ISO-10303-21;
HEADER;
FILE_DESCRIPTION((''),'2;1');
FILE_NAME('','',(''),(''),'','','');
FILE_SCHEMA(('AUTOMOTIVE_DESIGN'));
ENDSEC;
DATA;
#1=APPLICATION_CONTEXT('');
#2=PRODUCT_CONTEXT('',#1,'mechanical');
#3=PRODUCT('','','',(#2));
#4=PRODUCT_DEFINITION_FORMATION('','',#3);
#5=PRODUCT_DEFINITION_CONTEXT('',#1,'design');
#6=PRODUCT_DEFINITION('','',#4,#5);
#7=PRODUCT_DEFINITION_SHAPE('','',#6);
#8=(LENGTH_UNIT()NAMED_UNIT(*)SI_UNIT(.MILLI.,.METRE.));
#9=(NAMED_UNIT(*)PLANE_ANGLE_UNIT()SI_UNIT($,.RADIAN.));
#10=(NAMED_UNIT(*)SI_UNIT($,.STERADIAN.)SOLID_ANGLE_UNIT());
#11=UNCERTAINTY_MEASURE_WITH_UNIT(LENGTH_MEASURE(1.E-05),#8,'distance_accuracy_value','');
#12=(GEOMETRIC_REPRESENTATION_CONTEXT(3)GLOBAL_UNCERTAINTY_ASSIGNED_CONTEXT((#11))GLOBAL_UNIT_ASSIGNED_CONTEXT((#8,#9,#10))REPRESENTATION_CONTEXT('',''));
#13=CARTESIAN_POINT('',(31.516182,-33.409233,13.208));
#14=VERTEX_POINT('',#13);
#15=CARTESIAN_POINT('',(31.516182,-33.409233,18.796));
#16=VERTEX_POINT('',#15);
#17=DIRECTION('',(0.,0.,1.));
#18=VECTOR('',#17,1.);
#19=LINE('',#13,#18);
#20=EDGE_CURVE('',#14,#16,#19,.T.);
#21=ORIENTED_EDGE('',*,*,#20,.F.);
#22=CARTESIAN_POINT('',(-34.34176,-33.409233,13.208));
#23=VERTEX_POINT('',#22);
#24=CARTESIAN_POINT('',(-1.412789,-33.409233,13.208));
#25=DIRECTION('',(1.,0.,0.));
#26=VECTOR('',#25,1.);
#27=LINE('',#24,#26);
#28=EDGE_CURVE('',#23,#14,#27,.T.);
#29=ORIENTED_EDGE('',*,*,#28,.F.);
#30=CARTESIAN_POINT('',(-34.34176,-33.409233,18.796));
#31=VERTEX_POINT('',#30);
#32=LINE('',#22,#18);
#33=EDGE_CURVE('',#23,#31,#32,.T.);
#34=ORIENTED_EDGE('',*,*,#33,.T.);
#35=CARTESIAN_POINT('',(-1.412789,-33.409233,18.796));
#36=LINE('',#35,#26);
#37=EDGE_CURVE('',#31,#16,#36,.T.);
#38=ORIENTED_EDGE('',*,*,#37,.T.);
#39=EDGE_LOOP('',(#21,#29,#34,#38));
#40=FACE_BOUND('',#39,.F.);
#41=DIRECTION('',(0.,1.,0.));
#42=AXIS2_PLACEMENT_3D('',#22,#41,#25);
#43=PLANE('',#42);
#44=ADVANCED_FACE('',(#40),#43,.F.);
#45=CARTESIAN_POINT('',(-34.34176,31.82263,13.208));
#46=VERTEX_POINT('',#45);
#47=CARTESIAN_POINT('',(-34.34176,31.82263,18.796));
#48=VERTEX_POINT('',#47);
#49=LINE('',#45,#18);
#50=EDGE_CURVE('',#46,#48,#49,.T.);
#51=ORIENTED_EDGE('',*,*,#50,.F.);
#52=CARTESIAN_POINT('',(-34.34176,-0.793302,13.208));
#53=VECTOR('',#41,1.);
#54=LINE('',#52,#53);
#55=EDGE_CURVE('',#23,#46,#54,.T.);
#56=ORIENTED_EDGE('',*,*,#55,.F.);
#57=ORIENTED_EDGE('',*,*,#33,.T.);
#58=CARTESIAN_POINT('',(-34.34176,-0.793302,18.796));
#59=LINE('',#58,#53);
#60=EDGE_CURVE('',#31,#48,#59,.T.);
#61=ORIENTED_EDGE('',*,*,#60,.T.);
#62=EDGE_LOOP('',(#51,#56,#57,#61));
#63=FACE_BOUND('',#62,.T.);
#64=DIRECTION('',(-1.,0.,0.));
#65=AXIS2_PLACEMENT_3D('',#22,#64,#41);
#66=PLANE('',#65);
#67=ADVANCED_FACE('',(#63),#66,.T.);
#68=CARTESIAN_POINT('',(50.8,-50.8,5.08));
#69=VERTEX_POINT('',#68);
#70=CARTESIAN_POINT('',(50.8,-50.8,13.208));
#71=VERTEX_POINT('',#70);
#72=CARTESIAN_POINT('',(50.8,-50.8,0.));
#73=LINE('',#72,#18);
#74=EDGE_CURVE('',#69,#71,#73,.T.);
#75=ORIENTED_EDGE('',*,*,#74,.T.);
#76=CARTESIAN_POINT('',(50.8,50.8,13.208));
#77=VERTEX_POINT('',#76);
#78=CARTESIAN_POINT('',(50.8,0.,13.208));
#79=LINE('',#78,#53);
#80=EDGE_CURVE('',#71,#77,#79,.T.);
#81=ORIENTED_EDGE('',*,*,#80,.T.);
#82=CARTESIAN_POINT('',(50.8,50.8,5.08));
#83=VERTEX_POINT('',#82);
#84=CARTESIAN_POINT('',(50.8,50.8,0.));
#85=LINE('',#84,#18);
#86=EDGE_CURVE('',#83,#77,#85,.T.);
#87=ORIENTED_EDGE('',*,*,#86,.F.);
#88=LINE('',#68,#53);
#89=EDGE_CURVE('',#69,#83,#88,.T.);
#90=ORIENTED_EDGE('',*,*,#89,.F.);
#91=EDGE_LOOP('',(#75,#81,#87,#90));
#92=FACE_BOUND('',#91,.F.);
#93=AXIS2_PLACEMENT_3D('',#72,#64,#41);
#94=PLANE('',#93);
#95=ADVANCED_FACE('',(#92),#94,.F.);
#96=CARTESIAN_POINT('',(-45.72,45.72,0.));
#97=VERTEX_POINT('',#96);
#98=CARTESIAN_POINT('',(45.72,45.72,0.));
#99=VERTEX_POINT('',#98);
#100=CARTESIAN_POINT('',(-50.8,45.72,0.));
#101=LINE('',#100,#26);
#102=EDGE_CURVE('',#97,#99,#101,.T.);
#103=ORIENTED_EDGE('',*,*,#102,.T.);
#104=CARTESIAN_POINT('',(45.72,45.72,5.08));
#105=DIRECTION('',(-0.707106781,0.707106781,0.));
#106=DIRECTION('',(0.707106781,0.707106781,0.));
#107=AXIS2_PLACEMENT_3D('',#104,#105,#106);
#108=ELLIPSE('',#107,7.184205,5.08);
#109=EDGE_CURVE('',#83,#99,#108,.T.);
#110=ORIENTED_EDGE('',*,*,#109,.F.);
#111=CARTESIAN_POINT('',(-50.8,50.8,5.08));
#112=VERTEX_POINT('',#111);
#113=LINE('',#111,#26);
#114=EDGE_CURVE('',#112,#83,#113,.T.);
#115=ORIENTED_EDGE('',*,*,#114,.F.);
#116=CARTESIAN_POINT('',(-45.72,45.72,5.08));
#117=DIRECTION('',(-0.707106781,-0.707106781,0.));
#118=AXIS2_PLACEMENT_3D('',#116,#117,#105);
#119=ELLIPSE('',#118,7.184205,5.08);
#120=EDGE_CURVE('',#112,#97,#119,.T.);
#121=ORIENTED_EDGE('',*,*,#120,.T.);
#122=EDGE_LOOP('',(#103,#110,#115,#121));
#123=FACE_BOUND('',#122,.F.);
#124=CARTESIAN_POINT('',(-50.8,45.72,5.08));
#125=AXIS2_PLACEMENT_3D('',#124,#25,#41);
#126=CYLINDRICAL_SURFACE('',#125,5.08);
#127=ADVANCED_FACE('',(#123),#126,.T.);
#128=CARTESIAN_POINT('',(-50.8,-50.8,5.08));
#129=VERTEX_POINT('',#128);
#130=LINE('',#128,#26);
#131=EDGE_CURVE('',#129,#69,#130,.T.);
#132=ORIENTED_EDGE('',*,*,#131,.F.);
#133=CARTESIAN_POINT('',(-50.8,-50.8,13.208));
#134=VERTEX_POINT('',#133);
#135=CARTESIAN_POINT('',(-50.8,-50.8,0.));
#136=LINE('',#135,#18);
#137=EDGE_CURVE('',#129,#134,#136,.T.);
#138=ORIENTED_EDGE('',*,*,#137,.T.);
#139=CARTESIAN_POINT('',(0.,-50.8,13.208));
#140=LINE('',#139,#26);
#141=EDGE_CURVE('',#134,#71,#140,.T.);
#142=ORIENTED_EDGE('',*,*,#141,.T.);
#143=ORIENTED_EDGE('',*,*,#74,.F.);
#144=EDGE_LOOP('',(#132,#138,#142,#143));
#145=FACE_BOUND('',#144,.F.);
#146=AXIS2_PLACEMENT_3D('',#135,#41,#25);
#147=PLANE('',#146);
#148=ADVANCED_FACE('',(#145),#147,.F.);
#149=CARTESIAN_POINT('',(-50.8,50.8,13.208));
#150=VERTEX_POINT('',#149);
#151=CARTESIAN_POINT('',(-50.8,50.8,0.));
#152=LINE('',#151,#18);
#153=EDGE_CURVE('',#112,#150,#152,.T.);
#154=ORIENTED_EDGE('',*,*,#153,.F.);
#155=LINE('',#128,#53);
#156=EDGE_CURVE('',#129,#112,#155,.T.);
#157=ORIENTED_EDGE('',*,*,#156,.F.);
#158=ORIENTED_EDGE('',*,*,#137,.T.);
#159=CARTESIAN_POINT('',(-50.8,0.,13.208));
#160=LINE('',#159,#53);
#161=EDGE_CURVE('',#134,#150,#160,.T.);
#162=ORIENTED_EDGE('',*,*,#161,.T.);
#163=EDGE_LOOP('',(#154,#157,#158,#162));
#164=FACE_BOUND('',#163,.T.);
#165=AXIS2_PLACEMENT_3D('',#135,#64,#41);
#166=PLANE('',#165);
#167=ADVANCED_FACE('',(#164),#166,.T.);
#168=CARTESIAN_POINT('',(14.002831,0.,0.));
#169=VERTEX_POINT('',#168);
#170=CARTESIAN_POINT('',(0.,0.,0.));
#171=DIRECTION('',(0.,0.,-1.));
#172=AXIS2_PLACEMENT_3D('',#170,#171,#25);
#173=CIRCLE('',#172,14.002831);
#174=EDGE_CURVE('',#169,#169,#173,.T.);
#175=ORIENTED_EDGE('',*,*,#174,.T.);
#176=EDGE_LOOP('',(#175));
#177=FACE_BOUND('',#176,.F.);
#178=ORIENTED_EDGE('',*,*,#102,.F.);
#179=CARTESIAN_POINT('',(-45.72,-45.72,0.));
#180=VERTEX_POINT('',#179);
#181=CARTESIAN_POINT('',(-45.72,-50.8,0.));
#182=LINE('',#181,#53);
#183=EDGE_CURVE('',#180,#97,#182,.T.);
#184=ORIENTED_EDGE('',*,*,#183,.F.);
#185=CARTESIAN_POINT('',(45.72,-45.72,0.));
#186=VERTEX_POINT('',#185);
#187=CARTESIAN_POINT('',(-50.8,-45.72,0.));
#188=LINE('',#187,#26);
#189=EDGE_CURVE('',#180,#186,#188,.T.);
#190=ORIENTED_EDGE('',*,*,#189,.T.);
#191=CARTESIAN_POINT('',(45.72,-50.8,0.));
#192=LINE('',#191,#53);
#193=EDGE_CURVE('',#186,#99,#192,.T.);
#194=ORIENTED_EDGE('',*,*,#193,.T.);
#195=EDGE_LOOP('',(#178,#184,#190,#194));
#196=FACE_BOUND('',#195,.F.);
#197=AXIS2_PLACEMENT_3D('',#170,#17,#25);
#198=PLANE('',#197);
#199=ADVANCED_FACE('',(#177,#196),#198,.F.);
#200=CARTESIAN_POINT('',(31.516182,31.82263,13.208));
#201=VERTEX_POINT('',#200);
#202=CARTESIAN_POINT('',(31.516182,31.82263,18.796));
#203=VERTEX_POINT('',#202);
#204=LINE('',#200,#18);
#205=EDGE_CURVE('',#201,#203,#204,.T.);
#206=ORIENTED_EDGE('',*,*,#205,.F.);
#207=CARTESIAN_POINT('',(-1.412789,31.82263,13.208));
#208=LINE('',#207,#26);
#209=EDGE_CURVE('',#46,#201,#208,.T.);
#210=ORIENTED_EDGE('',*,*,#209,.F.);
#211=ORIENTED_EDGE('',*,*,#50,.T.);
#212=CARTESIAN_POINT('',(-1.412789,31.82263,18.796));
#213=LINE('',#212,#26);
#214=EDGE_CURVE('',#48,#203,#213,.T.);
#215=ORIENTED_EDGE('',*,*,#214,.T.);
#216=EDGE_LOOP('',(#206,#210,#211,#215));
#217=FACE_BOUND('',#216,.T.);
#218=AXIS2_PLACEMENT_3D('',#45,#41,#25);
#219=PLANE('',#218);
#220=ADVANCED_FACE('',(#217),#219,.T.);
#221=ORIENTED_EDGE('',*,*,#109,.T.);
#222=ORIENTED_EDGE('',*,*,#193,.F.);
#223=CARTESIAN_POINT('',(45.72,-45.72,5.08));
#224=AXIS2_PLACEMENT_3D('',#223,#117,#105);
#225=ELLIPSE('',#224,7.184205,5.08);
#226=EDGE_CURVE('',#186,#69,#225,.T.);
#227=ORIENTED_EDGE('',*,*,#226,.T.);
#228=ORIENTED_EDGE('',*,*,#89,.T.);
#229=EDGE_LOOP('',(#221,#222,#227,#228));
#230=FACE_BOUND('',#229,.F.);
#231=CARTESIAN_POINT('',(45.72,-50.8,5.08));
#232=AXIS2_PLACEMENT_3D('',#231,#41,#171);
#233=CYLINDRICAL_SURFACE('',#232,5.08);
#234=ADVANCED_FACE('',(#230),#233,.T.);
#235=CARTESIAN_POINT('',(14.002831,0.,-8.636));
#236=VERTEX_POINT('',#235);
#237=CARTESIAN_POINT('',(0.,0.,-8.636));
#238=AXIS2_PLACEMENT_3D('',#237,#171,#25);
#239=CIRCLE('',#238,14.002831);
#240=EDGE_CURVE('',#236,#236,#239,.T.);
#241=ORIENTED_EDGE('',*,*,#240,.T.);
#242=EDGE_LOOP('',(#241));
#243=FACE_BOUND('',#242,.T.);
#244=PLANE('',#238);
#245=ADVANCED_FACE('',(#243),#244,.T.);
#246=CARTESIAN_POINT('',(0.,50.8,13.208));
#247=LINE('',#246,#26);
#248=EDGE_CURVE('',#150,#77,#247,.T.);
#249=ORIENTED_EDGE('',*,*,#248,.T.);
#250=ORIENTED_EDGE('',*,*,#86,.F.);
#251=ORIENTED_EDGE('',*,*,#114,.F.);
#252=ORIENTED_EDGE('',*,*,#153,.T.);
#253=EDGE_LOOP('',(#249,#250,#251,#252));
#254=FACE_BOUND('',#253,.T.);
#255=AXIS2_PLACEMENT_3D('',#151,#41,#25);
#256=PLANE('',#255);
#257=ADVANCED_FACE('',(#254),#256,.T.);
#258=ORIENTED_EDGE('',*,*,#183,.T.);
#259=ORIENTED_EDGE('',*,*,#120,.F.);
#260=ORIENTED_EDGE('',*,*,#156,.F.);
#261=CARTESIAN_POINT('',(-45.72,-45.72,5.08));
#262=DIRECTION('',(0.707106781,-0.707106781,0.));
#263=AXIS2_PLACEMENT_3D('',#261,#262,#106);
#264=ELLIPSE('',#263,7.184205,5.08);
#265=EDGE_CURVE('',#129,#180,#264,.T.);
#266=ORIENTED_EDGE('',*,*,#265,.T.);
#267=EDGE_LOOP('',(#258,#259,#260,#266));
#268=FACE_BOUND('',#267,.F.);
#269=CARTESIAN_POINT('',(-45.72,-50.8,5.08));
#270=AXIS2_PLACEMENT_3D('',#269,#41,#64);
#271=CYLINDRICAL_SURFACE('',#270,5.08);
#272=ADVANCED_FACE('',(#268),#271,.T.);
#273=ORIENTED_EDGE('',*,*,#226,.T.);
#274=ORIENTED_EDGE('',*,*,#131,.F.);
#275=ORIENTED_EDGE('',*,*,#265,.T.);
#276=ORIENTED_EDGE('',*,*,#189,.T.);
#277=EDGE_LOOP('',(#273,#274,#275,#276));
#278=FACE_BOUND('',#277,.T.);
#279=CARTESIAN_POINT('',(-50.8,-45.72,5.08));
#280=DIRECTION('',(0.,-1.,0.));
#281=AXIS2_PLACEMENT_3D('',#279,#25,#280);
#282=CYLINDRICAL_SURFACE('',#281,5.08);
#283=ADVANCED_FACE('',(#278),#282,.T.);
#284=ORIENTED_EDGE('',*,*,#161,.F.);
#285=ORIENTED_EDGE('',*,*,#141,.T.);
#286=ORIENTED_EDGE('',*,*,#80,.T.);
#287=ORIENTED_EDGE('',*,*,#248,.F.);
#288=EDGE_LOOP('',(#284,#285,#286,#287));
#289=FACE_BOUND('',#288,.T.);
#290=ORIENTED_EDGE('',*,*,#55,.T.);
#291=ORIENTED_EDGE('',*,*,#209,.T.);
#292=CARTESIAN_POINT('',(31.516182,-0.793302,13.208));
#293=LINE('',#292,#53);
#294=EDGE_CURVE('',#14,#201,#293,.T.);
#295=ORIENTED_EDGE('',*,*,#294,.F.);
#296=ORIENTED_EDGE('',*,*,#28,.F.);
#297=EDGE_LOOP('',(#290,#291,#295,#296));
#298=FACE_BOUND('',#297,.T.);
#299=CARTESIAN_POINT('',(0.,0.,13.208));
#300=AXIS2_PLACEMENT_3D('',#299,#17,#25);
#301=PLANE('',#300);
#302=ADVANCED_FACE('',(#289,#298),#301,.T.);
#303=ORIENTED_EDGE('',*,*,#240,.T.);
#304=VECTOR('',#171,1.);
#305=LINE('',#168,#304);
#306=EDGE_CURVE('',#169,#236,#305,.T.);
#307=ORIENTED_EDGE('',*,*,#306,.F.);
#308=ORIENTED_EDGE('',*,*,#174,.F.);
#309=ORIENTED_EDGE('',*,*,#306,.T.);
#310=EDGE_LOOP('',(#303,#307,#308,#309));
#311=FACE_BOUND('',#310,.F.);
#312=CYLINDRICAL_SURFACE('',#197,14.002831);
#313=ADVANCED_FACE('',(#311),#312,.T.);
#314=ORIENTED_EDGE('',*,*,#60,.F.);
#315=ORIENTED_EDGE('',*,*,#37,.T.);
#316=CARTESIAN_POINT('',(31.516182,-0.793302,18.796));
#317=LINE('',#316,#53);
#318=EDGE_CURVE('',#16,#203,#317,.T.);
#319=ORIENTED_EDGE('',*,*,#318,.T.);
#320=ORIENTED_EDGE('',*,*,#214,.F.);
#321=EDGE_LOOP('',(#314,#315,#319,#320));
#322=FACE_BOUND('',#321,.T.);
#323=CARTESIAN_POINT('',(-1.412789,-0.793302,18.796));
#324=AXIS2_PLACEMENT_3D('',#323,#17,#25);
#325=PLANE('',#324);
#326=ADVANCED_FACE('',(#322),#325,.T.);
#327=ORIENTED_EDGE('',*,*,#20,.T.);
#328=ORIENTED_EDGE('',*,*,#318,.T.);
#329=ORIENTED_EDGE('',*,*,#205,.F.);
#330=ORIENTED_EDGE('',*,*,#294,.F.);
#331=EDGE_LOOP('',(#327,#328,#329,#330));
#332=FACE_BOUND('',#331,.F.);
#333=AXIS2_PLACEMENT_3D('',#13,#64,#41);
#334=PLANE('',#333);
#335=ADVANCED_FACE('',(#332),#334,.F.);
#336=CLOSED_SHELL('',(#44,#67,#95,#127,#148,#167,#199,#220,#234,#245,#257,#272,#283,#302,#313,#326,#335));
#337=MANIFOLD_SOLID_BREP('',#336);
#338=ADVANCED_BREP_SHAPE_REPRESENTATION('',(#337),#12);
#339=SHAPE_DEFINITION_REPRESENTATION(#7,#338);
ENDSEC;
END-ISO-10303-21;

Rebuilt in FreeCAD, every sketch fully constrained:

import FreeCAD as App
import Part
import Sketcher
Q = App.Units.Quantity


def edges_at(feature, points):
    """Names of the edges that pass closest to the given points."""
    edges = feature.Shape.Edges
    near = lambda p: min(range(len(edges)), key=lambda i: edges[i].distToShape(Part.Vertex(*p))[0])
    return sorted({f"Edge{near(p) + 1}" for p in points})


def add_polygon(sketch, points):
    """Adds a closed chain of lines whose ends are joined by coincident constraints."""
    first, n = sketch.GeometryCount, len(points)
    for a, b in zip(points, points[1:] + points[:1]):
        sketch.addGeometry(Part.LineSegment(App.Vector(*a, 0), App.Vector(*b, 0)), False)
    for i in range(n):
        sketch.addConstraint(Sketcher.Constraint("Coincident", first + i, 2, first + (i + 1) % n, 1))

doc = App.newDocument("Part")
params = doc.addObject("Spreadsheet::Sheet", "Params")
for row, (alias, value) in enumerate([
    ("sketch1_width", "4 in"),
    ("pad1_length", "0.52 in"),
    ("pad2_length", "0.34 in"),
    ("pad3_length", "0.22 in"),
    ("fillet_radius", "0.2 in"),
], start=1):
    params.set(f"A{row}", alias)
    params.set(f"B{row}", "=" + value)
    params.setAlias(f"B{row}", alias)

body = doc.addObject("PartDesign::Body", "Body")

# Sketch on XY plane
sketch1 = body.newObject("Sketcher::SketchObject", "Sketch")
sketch1.AttachmentSupport = (doc.getObject("XY_Plane"), [""])
sketch1.MapMode = "FlatFace"
add_polygon(sketch1, [(-51, 51), (-51, -51), (51, -51), (51, 51)])  # lines 0-3
sketch1.addConstraint([
    Sketcher.Constraint("Vertical", 0),
    Sketcher.Constraint("Horizontal", 1),
    Sketcher.Constraint("Vertical", 2),
    Sketcher.Constraint("Horizontal", 3),
    Sketcher.Constraint("Symmetric", 0, 2, 2, 2, -1, 1),
    Sketcher.Constraint("Equal", 3, 0),
    Sketcher.Constraint("DistanceX", 1, 1, 1, 2, Q("4 in")),
])
sketch1.setExpression("Constraints[10]", "Params.sketch1_width")
pad1 = body.newObject("PartDesign::Pad", "Pad")
pad1.Profile = sketch1
pad1.setExpression("Length", "Params.pad1_length")

# Sketch on XY plane
sketch2 = body.newObject("Sketcher::SketchObject", "Sketch001")
sketch2.AttachmentSupport = (doc.getObject("XY_Plane"), [""])
sketch2.MapMode = "FlatFace"
sketch2.addGeometry(Part.Circle(App.Vector(0, 0, 0), App.Vector(0, 0, 1), 14), False)
sketch2.addConstraint([
    Sketcher.Constraint("Coincident", 0, 3, -1, 1),
    Sketcher.Constraint("Diameter", 0, Q("28.005662 mm")),
])
pad2 = body.newObject("PartDesign::Pad", "Pad001")
pad2.Profile = sketch2
pad2.setExpression("Length", "Params.pad2_length")
pad2.Reversed = True

# Sketch on XY plane
sketch3 = body.newObject("Sketcher::SketchObject", "Sketch002")
sketch3.AttachmentSupport = (doc.getObject("XY_Plane"), [""])
sketch3.MapMode = "FlatFace"
sketch3.AttachmentOffset = App.Placement(App.Vector(0, 0, 0.52 * 25.4), App.Rotation())
add_polygon(sketch3, [(-34, 32), (-34, -33), (32, -33), (32, 32)])  # lines 0-3
sketch3.addConstraint([
    Sketcher.Constraint("Vertical", 0),
    Sketcher.Constraint("Horizontal", 1),
    Sketcher.Constraint("Vertical", 2),
    Sketcher.Constraint("Horizontal", 3),
    Sketcher.Constraint("DistanceX", 1, 1, 1, 2, Q("65.857943 mm")),
    Sketcher.Constraint("DistanceY", 0, 2, 0, 1, Q("65.231863 mm")),
    Sketcher.Constraint("DistanceX", 0, 2, -1, 1, Q("34.34176 mm")),
    Sketcher.Constraint("DistanceY", -1, 1, 2, 2, Q("31.82263 mm")),
])
pad3 = body.newObject("PartDesign::Pad", "Pad002")
pad3.Profile = sketch3
pad3.setExpression("Length", "Params.pad3_length")
doc.recompute()

fillet = body.newObject("PartDesign::Fillet", "Fillet")
fillet.Base = (pad3, edges_at(pad3, [
    (-50.8, 0, 0),
    (0, 50.8, 0),
    (50.8, 0, 0),
    (0, -50.8, 0),
]))
fillet.setExpression("Radius", "Params.fillet_radius")

doc.recompute()
